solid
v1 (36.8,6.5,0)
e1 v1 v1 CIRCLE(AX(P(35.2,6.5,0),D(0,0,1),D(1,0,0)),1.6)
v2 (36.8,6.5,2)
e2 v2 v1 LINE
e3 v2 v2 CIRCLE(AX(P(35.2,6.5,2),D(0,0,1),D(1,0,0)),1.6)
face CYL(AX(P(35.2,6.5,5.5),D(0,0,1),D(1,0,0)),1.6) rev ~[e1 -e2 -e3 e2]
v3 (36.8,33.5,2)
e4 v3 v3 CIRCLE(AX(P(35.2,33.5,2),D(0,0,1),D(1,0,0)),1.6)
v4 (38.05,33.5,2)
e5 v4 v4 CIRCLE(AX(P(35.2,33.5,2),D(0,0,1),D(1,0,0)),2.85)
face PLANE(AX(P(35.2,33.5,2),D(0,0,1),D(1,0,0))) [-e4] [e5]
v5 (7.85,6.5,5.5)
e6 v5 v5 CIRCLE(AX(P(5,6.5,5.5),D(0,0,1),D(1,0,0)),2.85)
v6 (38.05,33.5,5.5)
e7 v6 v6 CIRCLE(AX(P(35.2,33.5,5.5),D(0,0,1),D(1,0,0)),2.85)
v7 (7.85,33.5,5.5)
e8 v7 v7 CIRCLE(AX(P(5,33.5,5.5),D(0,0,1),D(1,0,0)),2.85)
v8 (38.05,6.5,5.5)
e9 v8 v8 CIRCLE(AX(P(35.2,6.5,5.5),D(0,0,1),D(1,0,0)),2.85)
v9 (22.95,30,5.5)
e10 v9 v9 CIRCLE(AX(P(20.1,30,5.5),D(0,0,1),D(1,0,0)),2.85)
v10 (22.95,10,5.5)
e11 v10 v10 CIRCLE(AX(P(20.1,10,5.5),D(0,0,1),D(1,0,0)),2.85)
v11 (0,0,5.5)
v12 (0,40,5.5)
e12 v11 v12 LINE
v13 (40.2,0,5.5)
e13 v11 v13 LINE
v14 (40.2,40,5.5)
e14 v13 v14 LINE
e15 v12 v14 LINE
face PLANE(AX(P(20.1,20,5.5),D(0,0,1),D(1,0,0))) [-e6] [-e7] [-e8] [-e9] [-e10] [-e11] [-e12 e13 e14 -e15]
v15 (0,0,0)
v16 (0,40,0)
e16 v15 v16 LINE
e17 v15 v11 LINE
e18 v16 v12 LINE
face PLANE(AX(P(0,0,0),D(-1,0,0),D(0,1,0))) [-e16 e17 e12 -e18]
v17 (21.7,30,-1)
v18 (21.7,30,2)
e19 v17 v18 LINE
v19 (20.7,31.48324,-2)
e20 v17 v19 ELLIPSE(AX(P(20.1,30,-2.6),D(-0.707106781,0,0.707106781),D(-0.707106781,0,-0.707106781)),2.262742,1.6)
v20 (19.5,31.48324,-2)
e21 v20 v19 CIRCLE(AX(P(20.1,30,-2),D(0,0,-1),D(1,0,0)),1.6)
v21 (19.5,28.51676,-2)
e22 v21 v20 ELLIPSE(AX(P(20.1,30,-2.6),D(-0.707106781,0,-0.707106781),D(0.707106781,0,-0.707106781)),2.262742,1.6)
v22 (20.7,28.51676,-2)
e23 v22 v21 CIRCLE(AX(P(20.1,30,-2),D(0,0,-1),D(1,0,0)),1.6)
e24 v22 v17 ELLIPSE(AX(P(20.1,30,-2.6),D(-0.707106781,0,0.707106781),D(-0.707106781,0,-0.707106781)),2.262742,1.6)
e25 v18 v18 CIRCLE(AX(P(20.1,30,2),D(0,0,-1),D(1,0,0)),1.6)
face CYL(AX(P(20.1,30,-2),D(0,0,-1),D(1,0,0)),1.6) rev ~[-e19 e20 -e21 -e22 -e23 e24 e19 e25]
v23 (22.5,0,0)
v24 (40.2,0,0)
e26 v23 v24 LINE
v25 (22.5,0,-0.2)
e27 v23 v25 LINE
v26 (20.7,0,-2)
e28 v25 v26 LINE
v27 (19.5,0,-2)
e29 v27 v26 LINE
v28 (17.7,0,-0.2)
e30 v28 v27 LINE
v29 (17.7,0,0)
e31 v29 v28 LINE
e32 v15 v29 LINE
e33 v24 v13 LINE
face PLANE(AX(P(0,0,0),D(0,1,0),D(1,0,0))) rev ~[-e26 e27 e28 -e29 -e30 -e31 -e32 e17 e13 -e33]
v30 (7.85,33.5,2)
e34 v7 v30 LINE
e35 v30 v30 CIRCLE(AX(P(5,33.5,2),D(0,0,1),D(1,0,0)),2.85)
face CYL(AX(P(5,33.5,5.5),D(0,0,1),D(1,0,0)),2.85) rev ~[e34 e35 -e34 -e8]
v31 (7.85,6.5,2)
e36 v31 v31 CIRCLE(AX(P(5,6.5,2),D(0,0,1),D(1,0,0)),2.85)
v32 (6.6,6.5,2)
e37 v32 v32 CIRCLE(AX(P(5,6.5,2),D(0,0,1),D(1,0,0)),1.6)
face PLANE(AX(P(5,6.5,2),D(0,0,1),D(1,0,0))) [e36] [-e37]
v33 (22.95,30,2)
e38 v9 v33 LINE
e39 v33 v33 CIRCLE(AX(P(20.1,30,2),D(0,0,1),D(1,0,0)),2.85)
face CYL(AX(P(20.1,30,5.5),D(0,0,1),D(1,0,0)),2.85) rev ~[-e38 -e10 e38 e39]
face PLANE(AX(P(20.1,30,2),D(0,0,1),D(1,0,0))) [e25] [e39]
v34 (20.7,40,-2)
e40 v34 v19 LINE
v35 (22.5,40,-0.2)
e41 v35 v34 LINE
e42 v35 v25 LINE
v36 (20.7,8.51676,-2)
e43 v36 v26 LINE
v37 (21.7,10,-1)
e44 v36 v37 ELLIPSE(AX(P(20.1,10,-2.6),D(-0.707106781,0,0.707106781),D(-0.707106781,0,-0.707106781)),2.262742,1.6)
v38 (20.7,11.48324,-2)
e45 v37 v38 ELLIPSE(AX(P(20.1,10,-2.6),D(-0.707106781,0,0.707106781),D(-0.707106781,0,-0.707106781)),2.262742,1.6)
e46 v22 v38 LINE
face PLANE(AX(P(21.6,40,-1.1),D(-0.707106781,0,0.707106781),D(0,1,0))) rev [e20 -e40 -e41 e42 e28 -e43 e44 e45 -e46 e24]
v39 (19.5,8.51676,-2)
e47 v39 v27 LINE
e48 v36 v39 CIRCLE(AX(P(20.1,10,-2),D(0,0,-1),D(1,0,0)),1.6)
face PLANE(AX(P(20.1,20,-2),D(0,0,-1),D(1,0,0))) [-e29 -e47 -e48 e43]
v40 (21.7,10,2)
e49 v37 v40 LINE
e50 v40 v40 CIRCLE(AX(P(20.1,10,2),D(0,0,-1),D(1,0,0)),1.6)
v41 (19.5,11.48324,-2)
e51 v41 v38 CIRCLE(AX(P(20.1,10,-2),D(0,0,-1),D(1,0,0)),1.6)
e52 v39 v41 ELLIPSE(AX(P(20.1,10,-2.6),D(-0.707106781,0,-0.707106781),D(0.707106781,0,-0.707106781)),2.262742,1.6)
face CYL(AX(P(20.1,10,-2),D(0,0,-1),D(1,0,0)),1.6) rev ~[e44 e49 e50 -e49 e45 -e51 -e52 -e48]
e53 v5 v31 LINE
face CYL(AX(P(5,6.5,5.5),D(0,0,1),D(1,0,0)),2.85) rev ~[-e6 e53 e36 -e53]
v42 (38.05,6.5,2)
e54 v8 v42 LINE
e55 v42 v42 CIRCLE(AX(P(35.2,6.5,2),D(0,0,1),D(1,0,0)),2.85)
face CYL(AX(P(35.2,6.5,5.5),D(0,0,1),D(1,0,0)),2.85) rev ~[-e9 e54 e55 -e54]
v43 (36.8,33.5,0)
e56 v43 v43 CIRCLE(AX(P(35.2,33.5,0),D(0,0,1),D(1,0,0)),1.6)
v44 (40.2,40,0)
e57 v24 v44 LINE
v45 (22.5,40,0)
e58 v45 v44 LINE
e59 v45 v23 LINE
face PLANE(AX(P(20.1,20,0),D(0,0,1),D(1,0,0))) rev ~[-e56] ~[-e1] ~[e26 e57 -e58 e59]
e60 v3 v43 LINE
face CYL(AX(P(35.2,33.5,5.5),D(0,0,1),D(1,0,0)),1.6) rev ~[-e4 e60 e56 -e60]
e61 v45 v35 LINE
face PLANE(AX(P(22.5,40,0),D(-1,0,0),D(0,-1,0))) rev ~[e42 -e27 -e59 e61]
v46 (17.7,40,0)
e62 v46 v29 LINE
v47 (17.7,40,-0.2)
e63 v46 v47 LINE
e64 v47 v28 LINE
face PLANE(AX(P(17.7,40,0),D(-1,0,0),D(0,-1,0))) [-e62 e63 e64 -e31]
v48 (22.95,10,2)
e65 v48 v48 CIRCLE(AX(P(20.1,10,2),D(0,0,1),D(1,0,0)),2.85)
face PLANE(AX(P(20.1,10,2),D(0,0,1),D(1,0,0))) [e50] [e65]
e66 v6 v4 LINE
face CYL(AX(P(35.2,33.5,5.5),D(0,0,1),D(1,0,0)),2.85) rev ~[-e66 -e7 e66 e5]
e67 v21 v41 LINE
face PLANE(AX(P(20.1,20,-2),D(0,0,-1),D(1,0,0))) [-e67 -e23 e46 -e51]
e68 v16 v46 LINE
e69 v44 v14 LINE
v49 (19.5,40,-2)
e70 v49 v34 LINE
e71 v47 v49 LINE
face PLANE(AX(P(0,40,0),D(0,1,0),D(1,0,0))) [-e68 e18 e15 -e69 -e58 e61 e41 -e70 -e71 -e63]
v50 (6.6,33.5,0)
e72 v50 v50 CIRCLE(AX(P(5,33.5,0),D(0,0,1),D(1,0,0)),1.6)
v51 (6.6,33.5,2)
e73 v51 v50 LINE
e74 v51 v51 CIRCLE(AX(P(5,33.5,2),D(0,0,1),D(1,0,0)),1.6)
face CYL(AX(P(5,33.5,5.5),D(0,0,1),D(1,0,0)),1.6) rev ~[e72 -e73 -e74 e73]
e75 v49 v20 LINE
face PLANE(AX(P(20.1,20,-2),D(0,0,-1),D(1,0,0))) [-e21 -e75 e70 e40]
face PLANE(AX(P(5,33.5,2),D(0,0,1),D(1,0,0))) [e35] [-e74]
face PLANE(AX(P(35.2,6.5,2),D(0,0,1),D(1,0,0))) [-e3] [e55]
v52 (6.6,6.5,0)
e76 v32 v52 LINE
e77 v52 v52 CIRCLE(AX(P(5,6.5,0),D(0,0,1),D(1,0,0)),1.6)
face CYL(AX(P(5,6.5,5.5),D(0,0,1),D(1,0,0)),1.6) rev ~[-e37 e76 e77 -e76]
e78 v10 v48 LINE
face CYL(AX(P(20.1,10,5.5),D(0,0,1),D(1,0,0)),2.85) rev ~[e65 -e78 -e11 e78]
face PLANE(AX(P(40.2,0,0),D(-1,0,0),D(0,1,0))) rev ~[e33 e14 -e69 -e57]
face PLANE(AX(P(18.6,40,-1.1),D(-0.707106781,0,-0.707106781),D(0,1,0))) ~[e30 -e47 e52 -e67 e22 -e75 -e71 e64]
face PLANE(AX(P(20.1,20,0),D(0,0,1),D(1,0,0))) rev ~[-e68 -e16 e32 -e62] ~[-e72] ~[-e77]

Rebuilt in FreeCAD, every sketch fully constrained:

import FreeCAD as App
import Part
import Sketcher
from FreeCAD import Vector
Q = App.Units.Quantity


def edges_at(feature, points):
    """Names of the edges that pass closest to the given points."""
    edges = feature.Shape.Edges
    near = lambda p: min(range(len(edges)), key=lambda i: edges[i].distToShape(Part.Vertex(*p))[0])
    return sorted({f"Edge{near(p) + 1}" for p in points})

doc = App.newDocument("Part")
body = doc.addObject("PartDesign::Body", "Body")

# Sketch on XY plane
sketch1 = body.newObject("Sketcher::SketchObject", "Sketch")
sketch1.AttachmentSupport = (doc.getObject("XY_Plane"), [""])
sketch1.MapMode = "FlatFace"
sketch1.addGeometry([
    Part.LineSegment(Vector(0, 40, 0), Vector(0, 0, 0)),
    Part.LineSegment(Vector(0, 0, 0), Vector(40, 0, 0)),
    Part.LineSegment(Vector(40, 0, 0), Vector(40, 40, 0)),
    Part.LineSegment(Vector(40, 40, 0), Vector(0, 40, 0)),
], False)
sketch1.addConstraint([
    Sketcher.Constraint("Coincident", 0, 2, 1, 1),
    Sketcher.Constraint("Coincident", 1, 2, 2, 1),
    Sketcher.Constraint("Coincident", 2, 2, 3, 1),
    Sketcher.Constraint("Coincident", 3, 2, 0, 1),
    Sketcher.Constraint("Vertical", 0),
    Sketcher.Constraint("Horizontal", 1),
    Sketcher.Constraint("Vertical", 2),
    Sketcher.Constraint("Horizontal", 3),
    Sketcher.Constraint("Coincident", 0, 2, -1, 1),
    Sketcher.Constraint("DistanceY", 0, 2, 0, 1, Q("40 mm")),
    Sketcher.Constraint("DistanceX", 1, 1, 1, 2, Q("40.2 mm")),
])
pad1 = body.newObject("PartDesign::Pad", "Pad")
pad1.Profile = sketch1
pad1.Length = 5.5

# Sketch on XY plane
sketch2 = body.newObject("Sketcher::SketchObject", "Sketch001")
sketch2.AttachmentSupport = (doc.getObject("XY_Plane"), [""])
sketch2.MapMode = "FlatFace"
sketch2.AttachmentOffset = App.Placement(Vector(0, 0, 5.5), App.Rotation())
sketch2.addGeometry([
    Part.Circle(Vector(35.2, 6.5, 0), Vector(0, 0, 1), 2.9),
    Part.Circle(Vector(35.2, 33.5, 0), Vector(0, 0, 1), 2.9),
    Part.Circle(Vector(5, 33.5, 0), Vector(0, 0, 1), 2.9),
    Part.Circle(Vector(5, 6.5, 0), Vector(0, 0, 1), 2.9),
], False)
sketch2.addConstraint([
    Sketcher.Constraint("Equal", 0, 1),
    Sketcher.Constraint("Equal", 1, 2),
    Sketcher.Constraint("Equal", 2, 3),
    Sketcher.Constraint("Horizontal", 1, 3, 2, 3),
    Sketcher.Constraint("Horizontal", 0, 3, 3, 3),
    Sketcher.Constraint("Vertical", 0, 3, 1, 3),
    Sketcher.Constraint("Vertical", 2, 3, 3, 3),
    Sketcher.Constraint("Diameter", 0, Q("5.7 mm")),
    Sketcher.Constraint("DistanceX", -1, 1, 2, 3, Q("5 mm")),
    Sketcher.Constraint("DistanceY", 0, 3, 1, 3, Q("27 mm")),
    Sketcher.Constraint("DistanceX", -1, 1, 0, 3, Q("35.2 mm")),
    Sketcher.Constraint("DistanceY", -1, 1, 0, 3, Q("6.5 mm")),
])
pocket1 = body.newObject("PartDesign::Pocket", "Pocket")
pocket1.Profile = sketch2
pocket1.Length = 3.5

# Sketch on XY plane
sketch3 = body.newObject("Sketcher::SketchObject", "Sketch002")
sketch3.AttachmentSupport = (doc.getObject("XY_Plane"), [""])
sketch3.MapMode = "FlatFace"
sketch3.AttachmentOffset = App.Placement(Vector(0, 0, 5.5), App.Rotation())
sketch3.addGeometry([
    Part.Circle(Vector(35.2, 33.5, 0), Vector(0, 0, 1), 1.6),
    Part.Circle(Vector(35.2, 6.5, 0), Vector(0, 0, 1), 1.6),
    Part.Circle(Vector(5, 33.5, 0), Vector(0, 0, 1), 1.6),
    Part.Circle(Vector(5, 6.5, 0), Vector(0, 0, 1), 1.6),
], False)
sketch3.addConstraint([
    Sketcher.Constraint("Equal", 0, 1),
    Sketcher.Constraint("Equal", 1, 2),
    Sketcher.Constraint("Equal", 2, 3),
    Sketcher.Constraint("Horizontal", 0, 3, 2, 3),
    Sketcher.Constraint("Horizontal", 1, 3, 3, 3),
    Sketcher.Constraint("Vertical", 0, 3, 1, 3),
    Sketcher.Constraint("Vertical", 2, 3, 3, 3),
    Sketcher.Constraint("Diameter", 0, Q("3.2 mm")),
    Sketcher.Constraint("DistanceX", -1, 1, 2, 3, Q("5 mm")),
    Sketcher.Constraint("DistanceY", 1, 3, 0, 3, Q("27 mm")),
    Sketcher.Constraint("DistanceX", -1, 1, 0, 3, Q("35.2 mm")),
    Sketcher.Constraint("DistanceY", -1, 1, 0, 3, Q("33.5 mm")),
])
pocket2 = body.newObject("PartDesign::Pocket", "Pocket001")
pocket2.Profile = sketch3
pocket2.Length = 25

# Sketch on XY plane
sketch4 = body.newObject("Sketcher::SketchObject", "Sketch003")
sketch4.AttachmentSupport = (doc.getObject("XY_Plane"), [""])
sketch4.MapMode = "FlatFace"
sketch4.addGeometry([
    Part.LineSegment(Vector(17.7, 0, 0), Vector(17.7, 40, 0)),
    Part.LineSegment(Vector(17.7, 40, 0), Vector(22.5, 40, 0)),
    Part.LineSegment(Vector(22.5, 40, 0), Vector(22.5, 0, 0)),
    Part.LineSegment(Vector(22.5, 0, 0), Vector(17.7, 0, 0)),
], False)
sketch4.addConstraint([
    Sketcher.Constraint("Coincident", 0, 2, 1, 1),
    Sketcher.Constraint("Coincident", 1, 2, 2, 1),
    Sketcher.Constraint("Coincident", 2, 2, 3, 1),
    Sketcher.Constraint("Coincident", 3, 2, 0, 1),
    Sketcher.Constraint("Vertical", 0),
    Sketcher.Constraint("Horizontal", 1),
    Sketcher.Constraint("Vertical", 2),
    Sketcher.Constraint("Horizontal", 3),
    Sketcher.Constraint("PointOnObject", 2, 2, -1),
    Sketcher.Constraint("DistanceY", 0, 1, 0, 2, Q("40 mm")),
    Sketcher.Constraint("DistanceX", 1, 1, 1, 2, Q("4.8 mm")),
    Sketcher.Constraint("DistanceX", -1, 1, 0, 2, Q("17.7 mm")),
])
pad2 = body.newObject("PartDesign::Pad", "Pad001")
pad2.Profile = sketch4
pad2.Length = 2
pad2.Reversed = True
doc.recompute()

chamfer = body.newObject("PartDesign::Chamfer", "Chamfer")
chamfer.Base = (pad2, edges_at(pad2, [(17.7, 20, -2), (22.5, 20, -2)]))
chamfer.Size = 1.8

# Sketch on XY plane
sketch5 = body.newObject("Sketcher::SketchObject", "Sketch004")
sketch5.AttachmentSupport = (doc.getObject("XY_Plane"), [""])
sketch5.MapMode = "FlatFace"
sketch5.AttachmentOffset = App.Placement(Vector(0, 0, -2), App.Rotation())
sketch5.addGeometry([
    Part.Circle(Vector(20.1, 30, 0), Vector(0, 0, 1), 1.6),
    Part.Circle(Vector(20.1, 10, 0), Vector(0, 0, 1), 1.6),
], False)
sketch5.addConstraint([
    Sketcher.Constraint("Equal", 0, 1),
    Sketcher.Constraint("Vertical", 0, 3, 1, 3),
    Sketcher.Constraint("Diameter", 0, Q("3.2 mm")),
    Sketcher.Constraint("DistanceY", -1, 1, 0, 3, Q("30 mm")),
    Sketcher.Constraint("DistanceY", -1, 1, 1, 3, Q("10 mm")),
    Sketcher.Constraint("DistanceX", -1, 1, 0, 3, Q("20.1 mm")),
])
pocket3 = body.newObject("PartDesign::Pocket", "Pocket002")
pocket3.Profile = sketch5
pocket3.Length = 25
pocket3.Reversed = True

# Sketch on XY plane
sketch6 = body.newObject("Sketcher::SketchObject", "Sketch005")
sketch6.AttachmentSupport = (doc.getObject("XY_Plane"), [""])
sketch6.MapMode = "FlatFace"
sketch6.AttachmentOffset = App.Placement(Vector(0, 0, 5.5), App.Rotation())
sketch6.addGeometry([
    Part.Circle(Vector(20.1, 30, 0), Vector(0, 0, 1), 2.9),
    Part.Circle(Vector(20.1, 10, 0), Vector(0, 0, 1), 2.9),
], False)
sketch6.addConstraint([
    Sketcher.Constraint("Equal", 0, 1),
    Sketcher.Constraint("Vertical", 0, 3, 1, 3),
    Sketcher.Constraint("Diameter", 0, Q("5.7 mm")),
    Sketcher.Constraint("DistanceY", -1, 1, 0, 3, Q("30 mm")),
    Sketcher.Constraint("DistanceY", -1, 1, 1, 3, Q("10 mm")),
    Sketcher.Constraint("DistanceX", -1, 1, 0, 3, Q("20.1 mm")),
])
pocket4 = body.newObject("PartDesign::Pocket", "Pocket003")
pocket4.Profile = sketch6
pocket4.Length = 3.5

doc.recompute()
